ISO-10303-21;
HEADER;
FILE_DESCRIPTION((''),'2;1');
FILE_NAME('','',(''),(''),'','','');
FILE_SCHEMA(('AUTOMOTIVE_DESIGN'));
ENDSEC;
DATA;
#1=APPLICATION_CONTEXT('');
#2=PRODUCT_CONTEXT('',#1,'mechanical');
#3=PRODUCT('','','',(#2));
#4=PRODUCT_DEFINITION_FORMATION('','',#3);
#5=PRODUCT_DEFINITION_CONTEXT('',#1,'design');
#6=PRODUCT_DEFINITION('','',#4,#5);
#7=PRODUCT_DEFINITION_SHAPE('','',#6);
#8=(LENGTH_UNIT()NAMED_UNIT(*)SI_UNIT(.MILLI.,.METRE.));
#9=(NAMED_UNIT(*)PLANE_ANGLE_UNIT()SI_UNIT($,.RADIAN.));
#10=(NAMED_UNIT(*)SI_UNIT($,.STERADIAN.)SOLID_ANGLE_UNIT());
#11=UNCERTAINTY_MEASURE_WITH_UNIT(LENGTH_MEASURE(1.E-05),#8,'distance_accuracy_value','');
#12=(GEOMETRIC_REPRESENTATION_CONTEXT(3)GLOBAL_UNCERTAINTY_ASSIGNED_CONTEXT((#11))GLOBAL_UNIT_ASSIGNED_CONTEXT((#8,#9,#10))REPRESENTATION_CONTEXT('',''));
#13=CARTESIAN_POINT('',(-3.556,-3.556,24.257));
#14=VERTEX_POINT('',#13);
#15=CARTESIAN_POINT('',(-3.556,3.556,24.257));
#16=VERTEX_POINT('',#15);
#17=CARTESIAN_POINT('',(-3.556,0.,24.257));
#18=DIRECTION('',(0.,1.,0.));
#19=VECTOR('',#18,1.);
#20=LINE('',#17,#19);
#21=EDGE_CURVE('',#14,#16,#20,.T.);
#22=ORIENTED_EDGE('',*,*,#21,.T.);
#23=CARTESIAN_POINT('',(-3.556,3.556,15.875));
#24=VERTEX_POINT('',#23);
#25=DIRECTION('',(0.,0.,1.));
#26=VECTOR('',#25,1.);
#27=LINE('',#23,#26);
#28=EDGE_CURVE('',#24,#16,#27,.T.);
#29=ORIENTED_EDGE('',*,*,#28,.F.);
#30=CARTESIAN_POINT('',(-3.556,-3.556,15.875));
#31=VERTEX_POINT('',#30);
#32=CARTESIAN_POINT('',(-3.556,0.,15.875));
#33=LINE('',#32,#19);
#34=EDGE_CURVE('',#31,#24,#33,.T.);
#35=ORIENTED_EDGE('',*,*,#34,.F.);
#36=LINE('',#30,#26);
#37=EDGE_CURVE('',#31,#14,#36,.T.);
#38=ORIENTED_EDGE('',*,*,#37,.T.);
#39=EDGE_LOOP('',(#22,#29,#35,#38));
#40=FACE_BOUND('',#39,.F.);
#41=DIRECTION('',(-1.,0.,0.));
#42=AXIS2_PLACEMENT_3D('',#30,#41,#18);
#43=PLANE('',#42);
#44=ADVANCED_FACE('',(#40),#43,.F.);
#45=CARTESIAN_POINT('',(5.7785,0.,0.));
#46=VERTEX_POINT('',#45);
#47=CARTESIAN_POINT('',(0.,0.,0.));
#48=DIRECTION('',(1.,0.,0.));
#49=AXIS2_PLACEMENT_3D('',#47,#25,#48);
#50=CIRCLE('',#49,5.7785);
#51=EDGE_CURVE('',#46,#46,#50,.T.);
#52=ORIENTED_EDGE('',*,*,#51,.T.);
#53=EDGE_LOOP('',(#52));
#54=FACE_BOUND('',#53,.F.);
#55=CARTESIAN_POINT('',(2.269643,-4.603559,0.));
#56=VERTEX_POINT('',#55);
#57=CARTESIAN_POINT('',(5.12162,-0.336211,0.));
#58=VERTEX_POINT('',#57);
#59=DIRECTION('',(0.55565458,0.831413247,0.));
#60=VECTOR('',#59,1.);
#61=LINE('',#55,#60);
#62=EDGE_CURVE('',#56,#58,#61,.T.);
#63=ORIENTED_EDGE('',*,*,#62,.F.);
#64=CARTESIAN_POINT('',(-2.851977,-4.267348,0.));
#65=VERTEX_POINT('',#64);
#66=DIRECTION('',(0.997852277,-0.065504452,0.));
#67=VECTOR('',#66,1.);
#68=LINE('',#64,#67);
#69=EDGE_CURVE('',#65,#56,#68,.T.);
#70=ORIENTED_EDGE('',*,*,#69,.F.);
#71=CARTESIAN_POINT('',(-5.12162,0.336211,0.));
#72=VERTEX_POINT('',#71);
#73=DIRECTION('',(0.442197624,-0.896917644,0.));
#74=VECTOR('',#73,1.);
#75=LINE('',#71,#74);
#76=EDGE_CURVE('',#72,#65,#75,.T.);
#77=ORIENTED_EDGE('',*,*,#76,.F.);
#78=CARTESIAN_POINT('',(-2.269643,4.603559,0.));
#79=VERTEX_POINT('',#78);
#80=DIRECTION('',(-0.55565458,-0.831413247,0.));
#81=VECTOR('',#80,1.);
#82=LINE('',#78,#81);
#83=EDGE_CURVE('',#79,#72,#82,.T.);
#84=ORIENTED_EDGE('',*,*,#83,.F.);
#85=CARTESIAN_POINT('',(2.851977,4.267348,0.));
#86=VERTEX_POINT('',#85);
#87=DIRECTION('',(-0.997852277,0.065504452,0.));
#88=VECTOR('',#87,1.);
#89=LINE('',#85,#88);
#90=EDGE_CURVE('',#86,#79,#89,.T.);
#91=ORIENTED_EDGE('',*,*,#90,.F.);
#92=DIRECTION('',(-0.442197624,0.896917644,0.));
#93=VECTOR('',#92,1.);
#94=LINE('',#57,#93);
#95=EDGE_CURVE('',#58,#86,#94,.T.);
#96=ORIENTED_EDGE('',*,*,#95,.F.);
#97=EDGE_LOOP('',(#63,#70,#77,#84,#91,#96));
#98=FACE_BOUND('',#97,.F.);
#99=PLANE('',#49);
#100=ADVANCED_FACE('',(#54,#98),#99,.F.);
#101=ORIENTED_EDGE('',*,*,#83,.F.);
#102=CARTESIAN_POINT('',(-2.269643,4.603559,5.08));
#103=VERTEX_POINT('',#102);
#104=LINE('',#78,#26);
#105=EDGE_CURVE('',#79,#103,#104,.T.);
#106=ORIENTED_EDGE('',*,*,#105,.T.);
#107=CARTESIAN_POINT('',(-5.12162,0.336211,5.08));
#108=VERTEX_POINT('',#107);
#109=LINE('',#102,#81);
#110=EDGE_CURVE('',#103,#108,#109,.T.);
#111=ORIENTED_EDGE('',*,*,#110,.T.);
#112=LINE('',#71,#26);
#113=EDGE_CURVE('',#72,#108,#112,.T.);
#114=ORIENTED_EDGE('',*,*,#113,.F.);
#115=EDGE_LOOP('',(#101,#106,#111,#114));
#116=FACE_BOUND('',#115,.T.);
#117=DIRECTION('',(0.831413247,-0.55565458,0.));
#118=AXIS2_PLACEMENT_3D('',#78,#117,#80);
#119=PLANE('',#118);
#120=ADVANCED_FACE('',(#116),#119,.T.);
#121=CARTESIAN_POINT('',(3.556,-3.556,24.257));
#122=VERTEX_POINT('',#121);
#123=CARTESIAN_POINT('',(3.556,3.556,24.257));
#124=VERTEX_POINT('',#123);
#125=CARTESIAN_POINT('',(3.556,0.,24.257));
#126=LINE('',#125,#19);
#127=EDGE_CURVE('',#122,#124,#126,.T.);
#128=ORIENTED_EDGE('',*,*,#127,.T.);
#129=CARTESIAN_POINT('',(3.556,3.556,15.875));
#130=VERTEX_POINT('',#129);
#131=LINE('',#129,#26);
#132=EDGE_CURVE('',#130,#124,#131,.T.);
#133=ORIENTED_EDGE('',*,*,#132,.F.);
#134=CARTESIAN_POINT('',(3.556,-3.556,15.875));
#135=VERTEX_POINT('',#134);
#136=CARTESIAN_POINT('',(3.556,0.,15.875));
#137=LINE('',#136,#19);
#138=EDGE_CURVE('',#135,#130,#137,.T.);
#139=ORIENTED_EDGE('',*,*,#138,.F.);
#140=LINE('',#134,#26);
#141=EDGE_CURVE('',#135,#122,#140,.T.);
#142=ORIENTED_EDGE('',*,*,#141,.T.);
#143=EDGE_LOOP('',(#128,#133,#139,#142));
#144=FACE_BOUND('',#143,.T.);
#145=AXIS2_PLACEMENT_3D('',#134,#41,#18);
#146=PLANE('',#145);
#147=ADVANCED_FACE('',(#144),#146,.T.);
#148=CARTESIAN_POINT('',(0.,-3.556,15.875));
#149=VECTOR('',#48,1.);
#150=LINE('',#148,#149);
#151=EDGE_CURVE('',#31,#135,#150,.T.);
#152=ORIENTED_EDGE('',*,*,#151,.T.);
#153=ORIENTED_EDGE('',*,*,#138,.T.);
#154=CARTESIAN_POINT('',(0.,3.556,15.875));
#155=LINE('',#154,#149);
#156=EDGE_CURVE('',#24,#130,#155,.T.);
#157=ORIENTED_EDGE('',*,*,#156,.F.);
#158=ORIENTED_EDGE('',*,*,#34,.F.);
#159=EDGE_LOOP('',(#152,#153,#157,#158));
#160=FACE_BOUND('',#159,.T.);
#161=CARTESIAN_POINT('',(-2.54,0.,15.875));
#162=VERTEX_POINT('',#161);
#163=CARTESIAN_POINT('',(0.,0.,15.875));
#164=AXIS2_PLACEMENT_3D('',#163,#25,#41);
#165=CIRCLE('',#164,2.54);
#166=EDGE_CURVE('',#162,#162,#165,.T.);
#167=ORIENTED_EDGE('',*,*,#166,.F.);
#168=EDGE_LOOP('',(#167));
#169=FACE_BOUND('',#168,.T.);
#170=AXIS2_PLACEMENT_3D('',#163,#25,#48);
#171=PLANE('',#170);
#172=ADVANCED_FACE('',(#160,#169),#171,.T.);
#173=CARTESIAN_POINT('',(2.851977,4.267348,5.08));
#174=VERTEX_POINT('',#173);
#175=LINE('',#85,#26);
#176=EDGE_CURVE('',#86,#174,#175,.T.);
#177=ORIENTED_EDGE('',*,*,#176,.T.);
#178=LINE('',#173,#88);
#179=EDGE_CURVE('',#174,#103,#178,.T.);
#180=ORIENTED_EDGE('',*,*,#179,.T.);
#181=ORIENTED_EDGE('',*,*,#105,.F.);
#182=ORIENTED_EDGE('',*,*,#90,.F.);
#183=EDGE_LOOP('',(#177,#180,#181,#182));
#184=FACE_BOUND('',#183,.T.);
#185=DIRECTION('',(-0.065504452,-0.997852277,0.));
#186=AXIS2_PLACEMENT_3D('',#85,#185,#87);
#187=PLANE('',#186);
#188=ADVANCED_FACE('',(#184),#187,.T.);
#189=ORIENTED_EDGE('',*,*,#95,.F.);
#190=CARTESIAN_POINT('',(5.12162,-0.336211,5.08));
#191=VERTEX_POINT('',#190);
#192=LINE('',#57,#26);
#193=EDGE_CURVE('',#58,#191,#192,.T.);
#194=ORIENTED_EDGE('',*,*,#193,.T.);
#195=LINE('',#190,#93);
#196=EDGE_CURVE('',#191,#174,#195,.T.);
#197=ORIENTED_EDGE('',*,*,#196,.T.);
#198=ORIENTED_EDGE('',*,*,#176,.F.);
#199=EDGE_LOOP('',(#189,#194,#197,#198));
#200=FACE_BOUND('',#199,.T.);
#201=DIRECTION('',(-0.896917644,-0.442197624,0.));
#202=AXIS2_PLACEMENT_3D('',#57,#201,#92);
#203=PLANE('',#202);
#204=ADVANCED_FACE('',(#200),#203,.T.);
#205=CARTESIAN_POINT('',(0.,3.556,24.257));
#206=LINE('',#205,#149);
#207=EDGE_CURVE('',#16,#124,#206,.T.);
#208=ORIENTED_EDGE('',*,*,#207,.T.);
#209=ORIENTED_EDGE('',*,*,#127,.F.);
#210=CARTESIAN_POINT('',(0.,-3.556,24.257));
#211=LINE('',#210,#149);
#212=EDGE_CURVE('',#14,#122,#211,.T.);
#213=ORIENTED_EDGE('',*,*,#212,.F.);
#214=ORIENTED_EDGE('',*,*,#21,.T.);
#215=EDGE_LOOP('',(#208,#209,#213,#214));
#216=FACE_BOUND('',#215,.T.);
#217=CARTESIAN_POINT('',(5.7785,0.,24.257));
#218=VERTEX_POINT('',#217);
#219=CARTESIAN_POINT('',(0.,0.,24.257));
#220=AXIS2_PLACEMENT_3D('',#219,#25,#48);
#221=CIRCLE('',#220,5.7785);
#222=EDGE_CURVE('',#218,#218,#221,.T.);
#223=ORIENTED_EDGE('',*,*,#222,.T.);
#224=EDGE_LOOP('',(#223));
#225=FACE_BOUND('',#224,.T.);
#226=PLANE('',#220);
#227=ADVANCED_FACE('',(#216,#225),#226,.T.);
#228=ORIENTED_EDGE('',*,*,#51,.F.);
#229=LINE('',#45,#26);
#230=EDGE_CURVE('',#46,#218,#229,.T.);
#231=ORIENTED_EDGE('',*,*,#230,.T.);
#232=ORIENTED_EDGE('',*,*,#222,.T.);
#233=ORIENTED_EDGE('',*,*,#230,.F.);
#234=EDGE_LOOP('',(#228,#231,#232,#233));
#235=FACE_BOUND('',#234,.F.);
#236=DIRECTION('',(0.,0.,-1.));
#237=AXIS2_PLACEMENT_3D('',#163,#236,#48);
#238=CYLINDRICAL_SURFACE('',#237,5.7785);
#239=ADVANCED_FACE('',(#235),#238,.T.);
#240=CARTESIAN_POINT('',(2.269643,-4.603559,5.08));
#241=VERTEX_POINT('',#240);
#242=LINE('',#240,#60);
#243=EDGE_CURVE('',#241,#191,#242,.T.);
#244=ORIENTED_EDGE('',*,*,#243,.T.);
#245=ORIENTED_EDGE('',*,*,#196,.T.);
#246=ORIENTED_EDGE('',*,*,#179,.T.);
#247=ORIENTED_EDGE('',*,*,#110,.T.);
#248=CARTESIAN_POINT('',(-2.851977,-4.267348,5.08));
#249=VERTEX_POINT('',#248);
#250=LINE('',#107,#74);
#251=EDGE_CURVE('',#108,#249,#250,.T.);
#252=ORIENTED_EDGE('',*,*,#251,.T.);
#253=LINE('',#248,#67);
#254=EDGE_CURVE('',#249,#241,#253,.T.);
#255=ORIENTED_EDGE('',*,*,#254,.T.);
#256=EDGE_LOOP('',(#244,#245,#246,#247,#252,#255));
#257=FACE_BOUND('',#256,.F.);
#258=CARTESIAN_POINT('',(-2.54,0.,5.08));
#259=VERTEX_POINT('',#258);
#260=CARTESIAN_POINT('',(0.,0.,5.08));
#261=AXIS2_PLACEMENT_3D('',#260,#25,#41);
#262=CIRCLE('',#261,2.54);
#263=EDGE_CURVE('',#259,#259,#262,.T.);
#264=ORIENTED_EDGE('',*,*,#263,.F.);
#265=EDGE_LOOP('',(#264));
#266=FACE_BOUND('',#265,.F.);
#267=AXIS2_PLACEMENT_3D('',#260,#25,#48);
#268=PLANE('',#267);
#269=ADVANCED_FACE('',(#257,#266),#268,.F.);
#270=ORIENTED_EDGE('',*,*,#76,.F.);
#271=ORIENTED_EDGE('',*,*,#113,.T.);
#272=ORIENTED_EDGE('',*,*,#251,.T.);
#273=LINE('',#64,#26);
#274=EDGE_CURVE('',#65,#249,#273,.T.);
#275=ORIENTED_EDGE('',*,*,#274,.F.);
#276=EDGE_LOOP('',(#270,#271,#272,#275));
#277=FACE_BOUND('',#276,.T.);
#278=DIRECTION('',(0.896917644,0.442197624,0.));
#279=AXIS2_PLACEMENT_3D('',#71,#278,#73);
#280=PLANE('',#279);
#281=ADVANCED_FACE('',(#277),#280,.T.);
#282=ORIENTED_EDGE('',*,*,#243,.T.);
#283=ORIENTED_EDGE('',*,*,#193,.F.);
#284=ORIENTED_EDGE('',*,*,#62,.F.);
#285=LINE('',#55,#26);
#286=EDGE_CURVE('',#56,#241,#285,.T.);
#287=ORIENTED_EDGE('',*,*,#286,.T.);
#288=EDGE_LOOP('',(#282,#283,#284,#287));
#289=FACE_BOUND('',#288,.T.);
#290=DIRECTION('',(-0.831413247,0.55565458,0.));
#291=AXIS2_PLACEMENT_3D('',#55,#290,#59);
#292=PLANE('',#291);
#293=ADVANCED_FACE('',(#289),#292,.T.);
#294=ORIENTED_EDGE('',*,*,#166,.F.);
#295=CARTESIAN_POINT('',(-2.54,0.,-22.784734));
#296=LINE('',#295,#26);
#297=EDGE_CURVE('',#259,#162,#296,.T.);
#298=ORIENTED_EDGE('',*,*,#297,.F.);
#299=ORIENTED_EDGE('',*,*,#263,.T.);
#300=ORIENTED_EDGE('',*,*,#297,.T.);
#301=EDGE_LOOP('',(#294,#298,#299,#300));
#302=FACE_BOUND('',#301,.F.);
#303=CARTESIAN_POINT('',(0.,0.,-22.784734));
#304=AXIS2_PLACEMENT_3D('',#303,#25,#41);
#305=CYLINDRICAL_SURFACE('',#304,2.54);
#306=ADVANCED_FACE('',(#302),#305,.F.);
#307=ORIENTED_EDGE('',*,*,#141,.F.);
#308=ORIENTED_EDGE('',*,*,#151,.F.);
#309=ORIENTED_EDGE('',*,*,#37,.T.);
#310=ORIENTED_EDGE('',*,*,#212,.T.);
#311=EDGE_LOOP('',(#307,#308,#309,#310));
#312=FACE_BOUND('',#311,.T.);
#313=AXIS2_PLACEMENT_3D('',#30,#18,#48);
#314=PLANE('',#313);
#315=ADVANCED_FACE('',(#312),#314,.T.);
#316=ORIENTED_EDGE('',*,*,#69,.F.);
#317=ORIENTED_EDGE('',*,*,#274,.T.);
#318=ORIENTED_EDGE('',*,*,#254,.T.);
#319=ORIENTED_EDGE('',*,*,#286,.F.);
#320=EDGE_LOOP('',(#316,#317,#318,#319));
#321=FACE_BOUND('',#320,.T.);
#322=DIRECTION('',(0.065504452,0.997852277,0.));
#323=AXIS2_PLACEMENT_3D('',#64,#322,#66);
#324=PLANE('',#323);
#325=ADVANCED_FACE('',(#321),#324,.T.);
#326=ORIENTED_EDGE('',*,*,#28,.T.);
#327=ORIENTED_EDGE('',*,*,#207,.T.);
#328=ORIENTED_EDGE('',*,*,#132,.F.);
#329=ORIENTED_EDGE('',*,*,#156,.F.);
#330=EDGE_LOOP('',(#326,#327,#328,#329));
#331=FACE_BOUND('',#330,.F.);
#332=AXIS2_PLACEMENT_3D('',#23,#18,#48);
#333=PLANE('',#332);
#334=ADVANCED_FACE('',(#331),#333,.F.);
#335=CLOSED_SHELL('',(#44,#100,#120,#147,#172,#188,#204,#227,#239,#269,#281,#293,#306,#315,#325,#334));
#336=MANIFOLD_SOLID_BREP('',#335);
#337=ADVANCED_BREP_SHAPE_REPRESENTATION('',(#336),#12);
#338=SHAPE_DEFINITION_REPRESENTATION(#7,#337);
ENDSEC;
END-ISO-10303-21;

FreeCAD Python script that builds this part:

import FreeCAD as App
import Part
import Sketcher
Q = App.Units.Quantity

doc = App.newDocument("Part")
body = doc.addObject("PartDesign::Body", "Body")

# Sketch on XY plane
sketch1 = body.newObject("Sketcher::SketchObject", "Sketch")
sketch1.AttachmentSupport = (doc.getObject("XY_Plane"), [""])
sketch1.MapMode = "FlatFace"
sketch1.addGeometry(Part.Circle(App.Vector(0, 0, 0), App.Vector(0, 0, 1), 6), False)
sketch1.addConstraint([
    Sketcher.Constraint("Coincident", 0, 3, -1, 1),
    Sketcher.Constraint("Diameter", 0, Q("0.455 in")),
])
pad1 = body.newObject("PartDesign::Pad", "Pad")
pad1.Profile = sketch1
pad1.Length = Q("0.625 in")

# Sketch on XY plane
sketch2 = body.newObject("Sketcher::SketchObject", "Sketch001")
sketch2.AttachmentSupport = (doc.getObject("XY_Plane"), [""])
sketch2.MapMode = "FlatFace"
sketch2.addGeometry([
    Part.LineSegment(App.Vector(2, -5, 0), App.Vector(5, 0, 0)),  # 0
    Part.LineSegment(App.Vector(5, 0, 0), App.Vector(3, 4, 0)),  # 1
    Part.LineSegment(App.Vector(3, 4, 0), App.Vector(-2, 5, 0)),  # 2
    Part.LineSegment(App.Vector(-2, 5, 0), App.Vector(-5, 0, 0)),  # 3
    Part.LineSegment(App.Vector(-5, 0, 0), App.Vector(-3, -4, 0)),  # 4
    Part.LineSegment(App.Vector(-3, -4, 0), App.Vector(2, -5, 0)),  # 5
], False)
sketch2.addConstraint([
    Sketcher.Constraint("Coincident", 0, 2, 1, 1),
    Sketcher.Constraint("Coincident", 1, 2, 2, 1),
    Sketcher.Constraint("Coincident", 2, 2, 3, 1),
    Sketcher.Constraint("Coincident", 3, 2, 4, 1),
    Sketcher.Constraint("Coincident", 4, 2, 5, 1),
    Sketcher.Constraint("Coincident", 5, 2, 0, 1),
    Sketcher.Constraint("Symmetric", 0, 2, 3, 2, -1, 1),
    Sketcher.Constraint("Symmetric", 1, 2, 4, 2, -1, 1),
    Sketcher.Constraint("Symmetric", 2, 2, 5, 2, -1, 1),
    Sketcher.Constraint("Equal", 0, 1),
    Sketcher.Constraint("Equal", 1, 2),
    Sketcher.Constraint("DistanceX", -1, 1, 0, 2, 5.12162),
    Sketcher.Constraint("DistanceY", 0, 2, -1, 1, 0.336211),
    Sketcher.Constraint("DistanceY", -1, 1, 2, 2, 4.603559),
    Sketcher.Constraint("DistanceY", 0, 2, 1, 2, 4.603559),
])
pocket1 = body.newObject("PartDesign::Pocket", "Pocket")
pocket1.Profile = sketch2
pocket1.Length = Q("0.2 in")
pocket1.Reversed = True

# Sketch on XY plane
sketch3 = body.newObject("Sketcher::SketchObject", "Sketch002")
sketch3.AttachmentSupport = (doc.getObject("XY_Plane"), [""])
sketch3.MapMode = "FlatFace"
sketch3.addGeometry(Part.Circle(App.Vector(0, 0, 0), App.Vector(0, 0, 1), 2.5), False)
sketch3.addConstraint([
    Sketcher.Constraint("Coincident", 0, 3, -1, 1),
    Sketcher.Constraint("Diameter", 0, Q("0.2 in")),
])
doc.recompute()
hole = body.newObject("PartDesign::Hole", "Hole")
hole.Profile = sketch3
hole.ThreadType = "None"
hole.Diameter = Q("0.2 in")
hole.DepthType = "ThroughAll"
hole.Reversed = True

# Sketch on XY plane
sketch4 = body.newObject("Sketcher::SketchObject", "Sketch003")
sketch4.AttachmentSupport = (doc.getObject("XY_Plane"), [""])
sketch4.MapMode = "FlatFace"
sketch4.AttachmentOffset = App.Placement(App.Vector(0, 0, 0.625 * 25.4), App.Rotation())
sketch4.addGeometry([
    Part.Circle(App.Vector(0, 0, 0), App.Vector(0, 0, 1), 6),  # 0
    Part.LineSegment(App.Vector(4, -4, 0), App.Vector(-4, -4, 0)),  # 1
    Part.LineSegment(App.Vector(-4, -4, 0), App.Vector(-4, 4, 0)),  # 2
    Part.LineSegment(App.Vector(-4, 4, 0), App.Vector(4, 4, 0)),  # 3
    Part.LineSegment(App.Vector(4, 4, 0), App.Vector(4, -4, 0)),  # 4
], False)
sketch4.addConstraint([
    Sketcher.Constraint("Coincident", 1, 2, 2, 1),
    Sketcher.Constraint("Coincident", 2, 2, 3, 1),
    Sketcher.Constraint("Coincident", 3, 2, 4, 1),
    Sketcher.Constraint("Coincident", 4, 2, 1, 1),
    Sketcher.Constraint("Horizontal", 1),
    Sketcher.Constraint("Vertical", 2),
    Sketcher.Constraint("Horizontal", 3),
    Sketcher.Constraint("Vertical", 4),
    Sketcher.Constraint("Coincident", 0, 3, -1, 1),
    Sketcher.Constraint("Symmetric", 1, 2, 3, 2, -1, 1),
    Sketcher.Constraint("Equal", 3, 2),
    Sketcher.Constraint("Diameter", 0, Q("0.455 in")),
    Sketcher.Constraint("DistanceX", 1, 2, 1, 1, Q("0.28 in")),
])
pad2 = body.newObject("PartDesign::Pad", "Pad001")
pad2.Profile = sketch4
pad2.Length = Q("0.33 in")

doc.recompute()
